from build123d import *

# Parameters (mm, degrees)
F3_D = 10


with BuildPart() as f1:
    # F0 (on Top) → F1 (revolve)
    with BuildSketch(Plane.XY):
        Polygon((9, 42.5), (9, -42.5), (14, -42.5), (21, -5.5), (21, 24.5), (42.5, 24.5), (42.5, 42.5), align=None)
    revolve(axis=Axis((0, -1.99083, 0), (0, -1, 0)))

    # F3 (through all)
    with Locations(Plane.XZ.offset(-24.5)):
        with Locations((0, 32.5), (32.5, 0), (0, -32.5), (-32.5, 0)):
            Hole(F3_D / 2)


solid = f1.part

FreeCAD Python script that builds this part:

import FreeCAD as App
import Part
import Sketcher
from FreeCAD import Vector
Q = App.Units.Quantity

doc = App.newDocument("Part")
body = doc.addObject("PartDesign::Body", "Body")

# Sketch on XY plane
sketch1 = body.newObject("Sketcher::SketchObject", "Sketch")
sketch1.AttachmentSupport = (doc.getObject("XY_Plane"), [""])
sketch1.MapMode = "FlatFace"
sketch1.addGeometry(Part.LineSegment(Vector(9, 42, 0), Vector(9, -42, 0)), False)
sketch1.addGeometry(Part.LineSegment(Vector(9, -42, 0), Vector(14, -42, 0)), False)
sketch1.addGeometry(Part.LineSegment(Vector(14, -42, 0), Vector(21, -6, 0)), False)
sketch1.addGeometry(Part.LineSegment(Vector(21, -6, 0), Vector(21, 24, 0)), False)
sketch1.addGeometry(Part.LineSegment(Vector(21, 24, 0), Vector(42, 24, 0)), False)
sketch1.addGeometry(Part.LineSegment(Vector(42, 24, 0), Vector(42, 42, 0)), False)
sketch1.addGeometry(Part.LineSegment(Vector(42, 42, 0), Vector(9, 42, 0)), False)
sketch1.addConstraint(Sketcher.Constraint("Coincident", 0, 2, 1, 1))
sketch1.addConstraint(Sketcher.Constraint("Coincident", 1, 2, 2, 1))
sketch1.addConstraint(Sketcher.Constraint("Coincident", 2, 2, 3, 1))
sketch1.addConstraint(Sketcher.Constraint("Coincident", 3, 2, 4, 1))
sketch1.addConstraint(Sketcher.Constraint("Coincident", 4, 2, 5, 1))
sketch1.addConstraint(Sketcher.Constraint("Coincident", 5, 2, 6, 1))
sketch1.addConstraint(Sketcher.Constraint("Coincident", 6, 2, 0, 1))
sketch1.addConstraint(Sketcher.Constraint("Vertical", 0))
sketch1.addConstraint(Sketcher.Constraint("Horizontal", 1))
sketch1.addConstraint(Sketcher.Constraint("Vertical", 3))
sketch1.addConstraint(Sketcher.Constraint("Horizontal", 4))
sketch1.addConstraint(Sketcher.Constraint("Vertical", 5))
sketch1.addConstraint(Sketcher.Constraint("Horizontal", 6))
sketch1.addConstraint(Sketcher.Constraint("DistanceX", 1, 1, 1, 2, Q("5 mm")))
sketch1.addConstraint(Sketcher.Constraint("DistanceY", 0, 2, 0, 1, Q("85 mm")))
sketch1.addConstraint(Sketcher.Constraint("DistanceY", 3, 1, 3, 2, Q("30 mm")))
sketch1.addConstraint(Sketcher.Constraint("DistanceY", 5, 1, 5, 2, Q("18 mm")))
sketch1.addConstraint(Sketcher.Constraint("DistanceX", 4, 1, 4, 2, Q("21.5 mm")))
sketch1.addConstraint(Sketcher.Constraint("DistanceX", 6, 2, 6, 1, Q("33.5 mm")))
sketch1.addConstraint(Sketcher.Constraint("DistanceX", -1, 1, 0, 2, Q("9 mm")))
sketch1.addConstraint(Sketcher.Constraint("DistanceY", 0, 2, -1, 1, Q("42.5 mm")))
revolution = body.newObject("PartDesign::Revolution", "Revolution")
revolution.Profile = sketch1
revolution.ReferenceAxis = (sketch1, ["V_Axis"])
revolution.Angle = 360

# Sketch on XZ plane
sketch2 = body.newObject("Sketcher::SketchObject", "Sketch001")
sketch2.AttachmentSupport = (doc.getObject("XZ_Plane"), [""])
sketch2.MapMode = "FlatFace"
sketch2.AttachmentOffset = App.Placement(Vector(0, 0, -24.5), App.Rotation())
sketch2.addGeometry(Part.Circle(Vector(0, 32, 0), Vector(0, 0, 1), 5), False)
sketch2.addGeometry(Part.Circle(Vector(32, 0, 0), Vector(0, 0, 1), 5), False)
sketch2.addGeometry(Part.Circle(Vector(0, -32, 0), Vector(0, 0, 1), 5), False)
sketch2.addGeometry(Part.Circle(Vector(-32, 0, 0), Vector(0, 0, 1), 5), False)
sketch2.addConstraint(Sketcher.Constraint("Equal", 0, 1))
sketch2.addConstraint(Sketcher.Constraint("Equal", 1, 2))
sketch2.addConstraint(Sketcher.Constraint("Equal", 2, 3))
sketch2.addConstraint(Sketcher.Constraint("Symmetric", 0, 3, 2, 3, -1, 1))
sketch2.addConstraint(Sketcher.Constraint("Symmetric", 1, 3, 3, 3, -1, 1))
sketch2.addConstraint(Sketcher.Constraint("PointOnObject", 0, 3, -2))
sketch2.addConstraint(Sketcher.Constraint("PointOnObject", 1, 3, -1))
sketch2.addConstraint(Sketcher.Constraint("Diameter", 0, Q("10 mm")))
sketch2.addConstraint(Sketcher.Constraint("DistanceY", 2, 3, 0, 3, Q("65 mm")))
sketch2.addConstraint(Sketcher.Constraint("DistanceX", 3, 3, 1, 3, Q("65 mm")))
doc.recompute()
hole = body.newObject("PartDesign::Hole", "Hole")
hole.Profile = sketch2
hole.ThreadType = "None"
hole.Diameter = 10
hole.DepthType = "ThroughAll"

doc.recompute()
